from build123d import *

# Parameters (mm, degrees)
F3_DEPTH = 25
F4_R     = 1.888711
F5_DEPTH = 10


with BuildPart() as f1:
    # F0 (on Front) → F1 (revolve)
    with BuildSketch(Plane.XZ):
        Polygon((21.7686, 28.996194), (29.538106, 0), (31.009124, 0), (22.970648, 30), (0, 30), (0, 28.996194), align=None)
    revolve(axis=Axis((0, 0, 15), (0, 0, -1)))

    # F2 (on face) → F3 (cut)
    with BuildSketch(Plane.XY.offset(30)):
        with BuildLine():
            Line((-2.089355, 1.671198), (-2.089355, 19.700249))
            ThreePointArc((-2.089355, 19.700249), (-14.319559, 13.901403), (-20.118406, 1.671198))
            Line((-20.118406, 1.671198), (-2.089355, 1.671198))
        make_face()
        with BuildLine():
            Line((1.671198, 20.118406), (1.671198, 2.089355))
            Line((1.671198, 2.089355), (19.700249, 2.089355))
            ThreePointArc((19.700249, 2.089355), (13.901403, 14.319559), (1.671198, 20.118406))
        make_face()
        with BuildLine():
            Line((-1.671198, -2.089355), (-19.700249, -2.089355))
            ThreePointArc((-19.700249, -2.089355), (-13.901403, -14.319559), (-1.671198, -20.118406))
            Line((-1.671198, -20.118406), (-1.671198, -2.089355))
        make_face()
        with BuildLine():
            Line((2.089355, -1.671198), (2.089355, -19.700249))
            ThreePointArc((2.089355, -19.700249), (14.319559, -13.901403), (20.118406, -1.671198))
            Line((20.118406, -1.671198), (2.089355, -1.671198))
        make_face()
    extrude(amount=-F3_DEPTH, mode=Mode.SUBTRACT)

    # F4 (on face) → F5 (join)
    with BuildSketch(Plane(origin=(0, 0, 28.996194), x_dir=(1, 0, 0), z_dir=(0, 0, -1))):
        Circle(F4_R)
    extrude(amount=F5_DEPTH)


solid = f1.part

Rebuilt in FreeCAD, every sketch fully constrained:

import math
import FreeCAD as App
import Part
import Sketcher
Q = App.Units.Quantity


def add_polygon(sketch, points):
    """Adds a closed chain of lines whose ends are joined by coincident constraints."""
    first, n = sketch.GeometryCount, len(points)
    for a, b in zip(points, points[1:] + points[:1]):
        sketch.addGeometry(Part.LineSegment(App.Vector(*a, 0), App.Vector(*b, 0)), False)
    for i in range(n):
        sketch.addConstraint(Sketcher.Constraint("Coincident", first + i, 2, first + (i + 1) % n, 1))

doc = App.newDocument("Part")
body = doc.addObject("PartDesign::Body", "Body")

# Sketch on XZ plane
sketch1 = doc.addObject("Sketcher::SketchObject", "Sketch")
body.addObject(sketch1)
sketch1.AttachmentSupport = (doc.XZ_Plane, [""])
sketch1.MapMode = "FlatFace"
add_polygon(sketch1, [(21.8, 29), (29.5, 0), (31, 0), (23, 30), (0, 30), (0, 29)])  # lines 0-5
sketch1.addConstraint(Sketcher.Constraint("Horizontal", 1))
sketch1.addConstraint(Sketcher.Constraint("Horizontal", 3))
sketch1.addConstraint(Sketcher.Constraint("Vertical", 4))
sketch1.addConstraint(Sketcher.Constraint("Horizontal", 5))
sketch1.addConstraint(Sketcher.Constraint("PointOnObject", 0, 2, -1))
sketch1.addConstraint(Sketcher.Constraint("PointOnObject", 3, 2, -2))
sketch1.addConstraint(Sketcher.Constraint("Parallel", 0, 2))
sketch1.addConstraint(Sketcher.Constraint("Angle", 0, Q("-75.000001 deg")))
sketch1.addConstraint(Sketcher.Constraint("DistanceY", -1, 1, 2, 2, Q("30 mm")))
sketch1.addConstraint(Sketcher.Constraint("DistanceX", 5, 1, 5, 2, Q("21.7686 mm")))
sketch1.addConstraint(Sketcher.Constraint("DistanceX", 1, 1, 1, 2, Q("1.471018 mm")))
sketch1.addConstraint(Sketcher.Constraint("DistanceX", 3, 2, 3, 1, Q("22.970648 mm")))
revolution = doc.addObject("PartDesign::Revolution", "Revolution")
body.addObject(revolution)
revolution.Profile = sketch1
revolution.ReferenceAxis = (sketch1, ["V_Axis"])
revolution.Angle = 360

# Sketch on XY plane
sketch2 = doc.addObject("Sketcher::SketchObject", "Sketch001")
body.addObject(sketch2)
sketch2.AttachmentSupport = (doc.XY_Plane, [""])
sketch2.MapMode = "FlatFace"
sketch2.AttachmentOffset = App.Placement(App.Vector(0, 0, 30), App.Rotation())
sketch2.addGeometry(Part.LineSegment(App.Vector(-2, 2, 0), App.Vector(-2, 20, 0)), False)
sketch2.addGeometry(Part.ArcOfCircle(Part.Circle(App.Vector(0, 0, 0), App.Vector(0, 0, 1), 20), math.radians(96), math.radians(174)), False)
sketch2.addGeometry(Part.LineSegment(App.Vector(-20, 2, 0), App.Vector(-2, 2, 0)), False)
sketch2.addGeometry(Part.LineSegment(App.Vector(2, 20, 0), App.Vector(2, 2, 0)), False)
sketch2.addGeometry(Part.LineSegment(App.Vector(2, 2, 0), App.Vector(20, 2, 0)), False)
sketch2.addGeometry(Part.ArcOfCircle(Part.Circle(App.Vector(0, 0, 0), App.Vector(0, 0, 1), 20), math.radians(6), math.radians(84)), False)
sketch2.addGeometry(Part.LineSegment(App.Vector(-2, -2, 0), App.Vector(-20, -2, 0)), False)
sketch2.addGeometry(Part.ArcOfCircle(Part.Circle(App.Vector(0, 0, 0), App.Vector(0, 0, 1), 20), math.radians(-174), math.radians(-96)), False)
sketch2.addGeometry(Part.LineSegment(App.Vector(-2, -20, 0), App.Vector(-2, -2, 0)), False)
sketch2.addGeometry(Part.LineSegment(App.Vector(2, -2, 0), App.Vector(2, -20, 0)), False)
sketch2.addGeometry(Part.ArcOfCircle(Part.Circle(App.Vector(0, 0, 0), App.Vector(0, 0, 1), 20), math.radians(-84), math.radians(-6)), False)
sketch2.addGeometry(Part.LineSegment(App.Vector(20, -2, 0), App.Vector(2, -2, 0)), False)
sketch2.addConstraint(Sketcher.Constraint("Coincident", 0, 2, 1, 1))
sketch2.addConstraint(Sketcher.Constraint("Coincident", 1, 2, 2, 1))
sketch2.addConstraint(Sketcher.Constraint("Coincident", 2, 2, 0, 1))
sketch2.addConstraint(Sketcher.Constraint("Coincident", 3, 2, 4, 1))
sketch2.addConstraint(Sketcher.Constraint("Coincident", 4, 2, 5, 1))
sketch2.addConstraint(Sketcher.Constraint("Coincident", 5, 2, 3, 1))
sketch2.addConstraint(Sketcher.Constraint("Coincident", 6, 2, 7, 1))
sketch2.addConstraint(Sketcher.Constraint("Coincident", 7, 2, 8, 1))
sketch2.addConstraint(Sketcher.Constraint("Coincident", 8, 2, 6, 1))
sketch2.addConstraint(Sketcher.Constraint("Coincident", 9, 2, 10, 1))
sketch2.addConstraint(Sketcher.Constraint("Coincident", 10, 2, 11, 1))
sketch2.addConstraint(Sketcher.Constraint("Coincident", 11, 2, 9, 1))
sketch2.addConstraint(Sketcher.Constraint("Vertical", 0))
sketch2.addConstraint(Sketcher.Constraint("Horizontal", 2))
sketch2.addConstraint(Sketcher.Constraint("Vertical", 3))
sketch2.addConstraint(Sketcher.Constraint("Horizontal", 4))
sketch2.addConstraint(Sketcher.Constraint("Horizontal", 6))
sketch2.addConstraint(Sketcher.Constraint("Vertical", 8))
sketch2.addConstraint(Sketcher.Constraint("Vertical", 9))
sketch2.addConstraint(Sketcher.Constraint("Horizontal", 11))
sketch2.addConstraint(Sketcher.Constraint("Equal", 1, 5))
sketch2.addConstraint(Sketcher.Constraint("Equal", 5, 7))
sketch2.addConstraint(Sketcher.Constraint("Equal", 7, 10))
sketch2.addConstraint(Sketcher.Constraint("Symmetric", 5, 3, 7, 3, -1, 1))
sketch2.addConstraint(Sketcher.Constraint("Symmetric", 1, 3, 10, 3, -1, 1))
sketch2.addConstraint(Sketcher.Constraint("Symmetric", 3, 2, 8, 2, -1, 1))
sketch2.addConstraint(Sketcher.Constraint("Symmetric", 2, 2, 11, 2, -1, 1))
sketch2.addConstraint(Sketcher.Constraint("Equal", 2, 4))
sketch2.addConstraint(Sketcher.Constraint("Equal", 11, 0))
sketch2.addConstraint(Sketcher.Constraint("Equal", 0, 3))
sketch2.addConstraint(Sketcher.Constraint("Radius", 1, Q("20.142738 mm")))
sketch2.addConstraint(Sketcher.Constraint("DistanceX", 2, 1, 2, 2, Q("18.029051 mm")))
sketch2.addConstraint(Sketcher.Constraint("DistanceX", 1, 2, 10, 3, Q("20.194899 mm")))
sketch2.addConstraint(Sketcher.Constraint("DistanceY", 7, 2, 5, 3, Q("20.194899 mm")))
sketch2.addConstraint(Sketcher.Constraint("DistanceY", -1, 1, 0, 2, Q("19.700249 mm")))
sketch2.addConstraint(Sketcher.Constraint("DistanceX", -1, 1, 4, 2, Q("19.700249 mm")))
pocket1 = doc.addObject("PartDesign::Pocket", "Pocket")
body.addObject(pocket1)
pocket1.Profile = sketch2
pocket1.Length = 25

# Sketch on XY plane
sketch3 = doc.addObject("Sketcher::SketchObject", "Sketch002")
body.addObject(sketch3)
sketch3.AttachmentSupport = (doc.XY_Plane, [""])
sketch3.MapMode = "FlatFace"
sketch3.AttachmentOffset = App.Placement(App.Vector(0, 0, 28.996194), App.Rotation())
sketch3.addGeometry(Part.Circle(App.Vector(0, 0, 0), App.Vector(0, 0, 1), 1.9), False)
sketch3.addConstraint(Sketcher.Constraint("Coincident", 0, 3, -1, 1))
sketch3.addConstraint(Sketcher.Constraint("Diameter", 0, Q("3.777422 mm")))
pad1 = doc.addObject("PartDesign::Pad", "Pad")
body.addObject(pad1)
pad1.Profile = sketch3
pad1.Length = 10
pad1.Reversed = True

doc.recompute()
